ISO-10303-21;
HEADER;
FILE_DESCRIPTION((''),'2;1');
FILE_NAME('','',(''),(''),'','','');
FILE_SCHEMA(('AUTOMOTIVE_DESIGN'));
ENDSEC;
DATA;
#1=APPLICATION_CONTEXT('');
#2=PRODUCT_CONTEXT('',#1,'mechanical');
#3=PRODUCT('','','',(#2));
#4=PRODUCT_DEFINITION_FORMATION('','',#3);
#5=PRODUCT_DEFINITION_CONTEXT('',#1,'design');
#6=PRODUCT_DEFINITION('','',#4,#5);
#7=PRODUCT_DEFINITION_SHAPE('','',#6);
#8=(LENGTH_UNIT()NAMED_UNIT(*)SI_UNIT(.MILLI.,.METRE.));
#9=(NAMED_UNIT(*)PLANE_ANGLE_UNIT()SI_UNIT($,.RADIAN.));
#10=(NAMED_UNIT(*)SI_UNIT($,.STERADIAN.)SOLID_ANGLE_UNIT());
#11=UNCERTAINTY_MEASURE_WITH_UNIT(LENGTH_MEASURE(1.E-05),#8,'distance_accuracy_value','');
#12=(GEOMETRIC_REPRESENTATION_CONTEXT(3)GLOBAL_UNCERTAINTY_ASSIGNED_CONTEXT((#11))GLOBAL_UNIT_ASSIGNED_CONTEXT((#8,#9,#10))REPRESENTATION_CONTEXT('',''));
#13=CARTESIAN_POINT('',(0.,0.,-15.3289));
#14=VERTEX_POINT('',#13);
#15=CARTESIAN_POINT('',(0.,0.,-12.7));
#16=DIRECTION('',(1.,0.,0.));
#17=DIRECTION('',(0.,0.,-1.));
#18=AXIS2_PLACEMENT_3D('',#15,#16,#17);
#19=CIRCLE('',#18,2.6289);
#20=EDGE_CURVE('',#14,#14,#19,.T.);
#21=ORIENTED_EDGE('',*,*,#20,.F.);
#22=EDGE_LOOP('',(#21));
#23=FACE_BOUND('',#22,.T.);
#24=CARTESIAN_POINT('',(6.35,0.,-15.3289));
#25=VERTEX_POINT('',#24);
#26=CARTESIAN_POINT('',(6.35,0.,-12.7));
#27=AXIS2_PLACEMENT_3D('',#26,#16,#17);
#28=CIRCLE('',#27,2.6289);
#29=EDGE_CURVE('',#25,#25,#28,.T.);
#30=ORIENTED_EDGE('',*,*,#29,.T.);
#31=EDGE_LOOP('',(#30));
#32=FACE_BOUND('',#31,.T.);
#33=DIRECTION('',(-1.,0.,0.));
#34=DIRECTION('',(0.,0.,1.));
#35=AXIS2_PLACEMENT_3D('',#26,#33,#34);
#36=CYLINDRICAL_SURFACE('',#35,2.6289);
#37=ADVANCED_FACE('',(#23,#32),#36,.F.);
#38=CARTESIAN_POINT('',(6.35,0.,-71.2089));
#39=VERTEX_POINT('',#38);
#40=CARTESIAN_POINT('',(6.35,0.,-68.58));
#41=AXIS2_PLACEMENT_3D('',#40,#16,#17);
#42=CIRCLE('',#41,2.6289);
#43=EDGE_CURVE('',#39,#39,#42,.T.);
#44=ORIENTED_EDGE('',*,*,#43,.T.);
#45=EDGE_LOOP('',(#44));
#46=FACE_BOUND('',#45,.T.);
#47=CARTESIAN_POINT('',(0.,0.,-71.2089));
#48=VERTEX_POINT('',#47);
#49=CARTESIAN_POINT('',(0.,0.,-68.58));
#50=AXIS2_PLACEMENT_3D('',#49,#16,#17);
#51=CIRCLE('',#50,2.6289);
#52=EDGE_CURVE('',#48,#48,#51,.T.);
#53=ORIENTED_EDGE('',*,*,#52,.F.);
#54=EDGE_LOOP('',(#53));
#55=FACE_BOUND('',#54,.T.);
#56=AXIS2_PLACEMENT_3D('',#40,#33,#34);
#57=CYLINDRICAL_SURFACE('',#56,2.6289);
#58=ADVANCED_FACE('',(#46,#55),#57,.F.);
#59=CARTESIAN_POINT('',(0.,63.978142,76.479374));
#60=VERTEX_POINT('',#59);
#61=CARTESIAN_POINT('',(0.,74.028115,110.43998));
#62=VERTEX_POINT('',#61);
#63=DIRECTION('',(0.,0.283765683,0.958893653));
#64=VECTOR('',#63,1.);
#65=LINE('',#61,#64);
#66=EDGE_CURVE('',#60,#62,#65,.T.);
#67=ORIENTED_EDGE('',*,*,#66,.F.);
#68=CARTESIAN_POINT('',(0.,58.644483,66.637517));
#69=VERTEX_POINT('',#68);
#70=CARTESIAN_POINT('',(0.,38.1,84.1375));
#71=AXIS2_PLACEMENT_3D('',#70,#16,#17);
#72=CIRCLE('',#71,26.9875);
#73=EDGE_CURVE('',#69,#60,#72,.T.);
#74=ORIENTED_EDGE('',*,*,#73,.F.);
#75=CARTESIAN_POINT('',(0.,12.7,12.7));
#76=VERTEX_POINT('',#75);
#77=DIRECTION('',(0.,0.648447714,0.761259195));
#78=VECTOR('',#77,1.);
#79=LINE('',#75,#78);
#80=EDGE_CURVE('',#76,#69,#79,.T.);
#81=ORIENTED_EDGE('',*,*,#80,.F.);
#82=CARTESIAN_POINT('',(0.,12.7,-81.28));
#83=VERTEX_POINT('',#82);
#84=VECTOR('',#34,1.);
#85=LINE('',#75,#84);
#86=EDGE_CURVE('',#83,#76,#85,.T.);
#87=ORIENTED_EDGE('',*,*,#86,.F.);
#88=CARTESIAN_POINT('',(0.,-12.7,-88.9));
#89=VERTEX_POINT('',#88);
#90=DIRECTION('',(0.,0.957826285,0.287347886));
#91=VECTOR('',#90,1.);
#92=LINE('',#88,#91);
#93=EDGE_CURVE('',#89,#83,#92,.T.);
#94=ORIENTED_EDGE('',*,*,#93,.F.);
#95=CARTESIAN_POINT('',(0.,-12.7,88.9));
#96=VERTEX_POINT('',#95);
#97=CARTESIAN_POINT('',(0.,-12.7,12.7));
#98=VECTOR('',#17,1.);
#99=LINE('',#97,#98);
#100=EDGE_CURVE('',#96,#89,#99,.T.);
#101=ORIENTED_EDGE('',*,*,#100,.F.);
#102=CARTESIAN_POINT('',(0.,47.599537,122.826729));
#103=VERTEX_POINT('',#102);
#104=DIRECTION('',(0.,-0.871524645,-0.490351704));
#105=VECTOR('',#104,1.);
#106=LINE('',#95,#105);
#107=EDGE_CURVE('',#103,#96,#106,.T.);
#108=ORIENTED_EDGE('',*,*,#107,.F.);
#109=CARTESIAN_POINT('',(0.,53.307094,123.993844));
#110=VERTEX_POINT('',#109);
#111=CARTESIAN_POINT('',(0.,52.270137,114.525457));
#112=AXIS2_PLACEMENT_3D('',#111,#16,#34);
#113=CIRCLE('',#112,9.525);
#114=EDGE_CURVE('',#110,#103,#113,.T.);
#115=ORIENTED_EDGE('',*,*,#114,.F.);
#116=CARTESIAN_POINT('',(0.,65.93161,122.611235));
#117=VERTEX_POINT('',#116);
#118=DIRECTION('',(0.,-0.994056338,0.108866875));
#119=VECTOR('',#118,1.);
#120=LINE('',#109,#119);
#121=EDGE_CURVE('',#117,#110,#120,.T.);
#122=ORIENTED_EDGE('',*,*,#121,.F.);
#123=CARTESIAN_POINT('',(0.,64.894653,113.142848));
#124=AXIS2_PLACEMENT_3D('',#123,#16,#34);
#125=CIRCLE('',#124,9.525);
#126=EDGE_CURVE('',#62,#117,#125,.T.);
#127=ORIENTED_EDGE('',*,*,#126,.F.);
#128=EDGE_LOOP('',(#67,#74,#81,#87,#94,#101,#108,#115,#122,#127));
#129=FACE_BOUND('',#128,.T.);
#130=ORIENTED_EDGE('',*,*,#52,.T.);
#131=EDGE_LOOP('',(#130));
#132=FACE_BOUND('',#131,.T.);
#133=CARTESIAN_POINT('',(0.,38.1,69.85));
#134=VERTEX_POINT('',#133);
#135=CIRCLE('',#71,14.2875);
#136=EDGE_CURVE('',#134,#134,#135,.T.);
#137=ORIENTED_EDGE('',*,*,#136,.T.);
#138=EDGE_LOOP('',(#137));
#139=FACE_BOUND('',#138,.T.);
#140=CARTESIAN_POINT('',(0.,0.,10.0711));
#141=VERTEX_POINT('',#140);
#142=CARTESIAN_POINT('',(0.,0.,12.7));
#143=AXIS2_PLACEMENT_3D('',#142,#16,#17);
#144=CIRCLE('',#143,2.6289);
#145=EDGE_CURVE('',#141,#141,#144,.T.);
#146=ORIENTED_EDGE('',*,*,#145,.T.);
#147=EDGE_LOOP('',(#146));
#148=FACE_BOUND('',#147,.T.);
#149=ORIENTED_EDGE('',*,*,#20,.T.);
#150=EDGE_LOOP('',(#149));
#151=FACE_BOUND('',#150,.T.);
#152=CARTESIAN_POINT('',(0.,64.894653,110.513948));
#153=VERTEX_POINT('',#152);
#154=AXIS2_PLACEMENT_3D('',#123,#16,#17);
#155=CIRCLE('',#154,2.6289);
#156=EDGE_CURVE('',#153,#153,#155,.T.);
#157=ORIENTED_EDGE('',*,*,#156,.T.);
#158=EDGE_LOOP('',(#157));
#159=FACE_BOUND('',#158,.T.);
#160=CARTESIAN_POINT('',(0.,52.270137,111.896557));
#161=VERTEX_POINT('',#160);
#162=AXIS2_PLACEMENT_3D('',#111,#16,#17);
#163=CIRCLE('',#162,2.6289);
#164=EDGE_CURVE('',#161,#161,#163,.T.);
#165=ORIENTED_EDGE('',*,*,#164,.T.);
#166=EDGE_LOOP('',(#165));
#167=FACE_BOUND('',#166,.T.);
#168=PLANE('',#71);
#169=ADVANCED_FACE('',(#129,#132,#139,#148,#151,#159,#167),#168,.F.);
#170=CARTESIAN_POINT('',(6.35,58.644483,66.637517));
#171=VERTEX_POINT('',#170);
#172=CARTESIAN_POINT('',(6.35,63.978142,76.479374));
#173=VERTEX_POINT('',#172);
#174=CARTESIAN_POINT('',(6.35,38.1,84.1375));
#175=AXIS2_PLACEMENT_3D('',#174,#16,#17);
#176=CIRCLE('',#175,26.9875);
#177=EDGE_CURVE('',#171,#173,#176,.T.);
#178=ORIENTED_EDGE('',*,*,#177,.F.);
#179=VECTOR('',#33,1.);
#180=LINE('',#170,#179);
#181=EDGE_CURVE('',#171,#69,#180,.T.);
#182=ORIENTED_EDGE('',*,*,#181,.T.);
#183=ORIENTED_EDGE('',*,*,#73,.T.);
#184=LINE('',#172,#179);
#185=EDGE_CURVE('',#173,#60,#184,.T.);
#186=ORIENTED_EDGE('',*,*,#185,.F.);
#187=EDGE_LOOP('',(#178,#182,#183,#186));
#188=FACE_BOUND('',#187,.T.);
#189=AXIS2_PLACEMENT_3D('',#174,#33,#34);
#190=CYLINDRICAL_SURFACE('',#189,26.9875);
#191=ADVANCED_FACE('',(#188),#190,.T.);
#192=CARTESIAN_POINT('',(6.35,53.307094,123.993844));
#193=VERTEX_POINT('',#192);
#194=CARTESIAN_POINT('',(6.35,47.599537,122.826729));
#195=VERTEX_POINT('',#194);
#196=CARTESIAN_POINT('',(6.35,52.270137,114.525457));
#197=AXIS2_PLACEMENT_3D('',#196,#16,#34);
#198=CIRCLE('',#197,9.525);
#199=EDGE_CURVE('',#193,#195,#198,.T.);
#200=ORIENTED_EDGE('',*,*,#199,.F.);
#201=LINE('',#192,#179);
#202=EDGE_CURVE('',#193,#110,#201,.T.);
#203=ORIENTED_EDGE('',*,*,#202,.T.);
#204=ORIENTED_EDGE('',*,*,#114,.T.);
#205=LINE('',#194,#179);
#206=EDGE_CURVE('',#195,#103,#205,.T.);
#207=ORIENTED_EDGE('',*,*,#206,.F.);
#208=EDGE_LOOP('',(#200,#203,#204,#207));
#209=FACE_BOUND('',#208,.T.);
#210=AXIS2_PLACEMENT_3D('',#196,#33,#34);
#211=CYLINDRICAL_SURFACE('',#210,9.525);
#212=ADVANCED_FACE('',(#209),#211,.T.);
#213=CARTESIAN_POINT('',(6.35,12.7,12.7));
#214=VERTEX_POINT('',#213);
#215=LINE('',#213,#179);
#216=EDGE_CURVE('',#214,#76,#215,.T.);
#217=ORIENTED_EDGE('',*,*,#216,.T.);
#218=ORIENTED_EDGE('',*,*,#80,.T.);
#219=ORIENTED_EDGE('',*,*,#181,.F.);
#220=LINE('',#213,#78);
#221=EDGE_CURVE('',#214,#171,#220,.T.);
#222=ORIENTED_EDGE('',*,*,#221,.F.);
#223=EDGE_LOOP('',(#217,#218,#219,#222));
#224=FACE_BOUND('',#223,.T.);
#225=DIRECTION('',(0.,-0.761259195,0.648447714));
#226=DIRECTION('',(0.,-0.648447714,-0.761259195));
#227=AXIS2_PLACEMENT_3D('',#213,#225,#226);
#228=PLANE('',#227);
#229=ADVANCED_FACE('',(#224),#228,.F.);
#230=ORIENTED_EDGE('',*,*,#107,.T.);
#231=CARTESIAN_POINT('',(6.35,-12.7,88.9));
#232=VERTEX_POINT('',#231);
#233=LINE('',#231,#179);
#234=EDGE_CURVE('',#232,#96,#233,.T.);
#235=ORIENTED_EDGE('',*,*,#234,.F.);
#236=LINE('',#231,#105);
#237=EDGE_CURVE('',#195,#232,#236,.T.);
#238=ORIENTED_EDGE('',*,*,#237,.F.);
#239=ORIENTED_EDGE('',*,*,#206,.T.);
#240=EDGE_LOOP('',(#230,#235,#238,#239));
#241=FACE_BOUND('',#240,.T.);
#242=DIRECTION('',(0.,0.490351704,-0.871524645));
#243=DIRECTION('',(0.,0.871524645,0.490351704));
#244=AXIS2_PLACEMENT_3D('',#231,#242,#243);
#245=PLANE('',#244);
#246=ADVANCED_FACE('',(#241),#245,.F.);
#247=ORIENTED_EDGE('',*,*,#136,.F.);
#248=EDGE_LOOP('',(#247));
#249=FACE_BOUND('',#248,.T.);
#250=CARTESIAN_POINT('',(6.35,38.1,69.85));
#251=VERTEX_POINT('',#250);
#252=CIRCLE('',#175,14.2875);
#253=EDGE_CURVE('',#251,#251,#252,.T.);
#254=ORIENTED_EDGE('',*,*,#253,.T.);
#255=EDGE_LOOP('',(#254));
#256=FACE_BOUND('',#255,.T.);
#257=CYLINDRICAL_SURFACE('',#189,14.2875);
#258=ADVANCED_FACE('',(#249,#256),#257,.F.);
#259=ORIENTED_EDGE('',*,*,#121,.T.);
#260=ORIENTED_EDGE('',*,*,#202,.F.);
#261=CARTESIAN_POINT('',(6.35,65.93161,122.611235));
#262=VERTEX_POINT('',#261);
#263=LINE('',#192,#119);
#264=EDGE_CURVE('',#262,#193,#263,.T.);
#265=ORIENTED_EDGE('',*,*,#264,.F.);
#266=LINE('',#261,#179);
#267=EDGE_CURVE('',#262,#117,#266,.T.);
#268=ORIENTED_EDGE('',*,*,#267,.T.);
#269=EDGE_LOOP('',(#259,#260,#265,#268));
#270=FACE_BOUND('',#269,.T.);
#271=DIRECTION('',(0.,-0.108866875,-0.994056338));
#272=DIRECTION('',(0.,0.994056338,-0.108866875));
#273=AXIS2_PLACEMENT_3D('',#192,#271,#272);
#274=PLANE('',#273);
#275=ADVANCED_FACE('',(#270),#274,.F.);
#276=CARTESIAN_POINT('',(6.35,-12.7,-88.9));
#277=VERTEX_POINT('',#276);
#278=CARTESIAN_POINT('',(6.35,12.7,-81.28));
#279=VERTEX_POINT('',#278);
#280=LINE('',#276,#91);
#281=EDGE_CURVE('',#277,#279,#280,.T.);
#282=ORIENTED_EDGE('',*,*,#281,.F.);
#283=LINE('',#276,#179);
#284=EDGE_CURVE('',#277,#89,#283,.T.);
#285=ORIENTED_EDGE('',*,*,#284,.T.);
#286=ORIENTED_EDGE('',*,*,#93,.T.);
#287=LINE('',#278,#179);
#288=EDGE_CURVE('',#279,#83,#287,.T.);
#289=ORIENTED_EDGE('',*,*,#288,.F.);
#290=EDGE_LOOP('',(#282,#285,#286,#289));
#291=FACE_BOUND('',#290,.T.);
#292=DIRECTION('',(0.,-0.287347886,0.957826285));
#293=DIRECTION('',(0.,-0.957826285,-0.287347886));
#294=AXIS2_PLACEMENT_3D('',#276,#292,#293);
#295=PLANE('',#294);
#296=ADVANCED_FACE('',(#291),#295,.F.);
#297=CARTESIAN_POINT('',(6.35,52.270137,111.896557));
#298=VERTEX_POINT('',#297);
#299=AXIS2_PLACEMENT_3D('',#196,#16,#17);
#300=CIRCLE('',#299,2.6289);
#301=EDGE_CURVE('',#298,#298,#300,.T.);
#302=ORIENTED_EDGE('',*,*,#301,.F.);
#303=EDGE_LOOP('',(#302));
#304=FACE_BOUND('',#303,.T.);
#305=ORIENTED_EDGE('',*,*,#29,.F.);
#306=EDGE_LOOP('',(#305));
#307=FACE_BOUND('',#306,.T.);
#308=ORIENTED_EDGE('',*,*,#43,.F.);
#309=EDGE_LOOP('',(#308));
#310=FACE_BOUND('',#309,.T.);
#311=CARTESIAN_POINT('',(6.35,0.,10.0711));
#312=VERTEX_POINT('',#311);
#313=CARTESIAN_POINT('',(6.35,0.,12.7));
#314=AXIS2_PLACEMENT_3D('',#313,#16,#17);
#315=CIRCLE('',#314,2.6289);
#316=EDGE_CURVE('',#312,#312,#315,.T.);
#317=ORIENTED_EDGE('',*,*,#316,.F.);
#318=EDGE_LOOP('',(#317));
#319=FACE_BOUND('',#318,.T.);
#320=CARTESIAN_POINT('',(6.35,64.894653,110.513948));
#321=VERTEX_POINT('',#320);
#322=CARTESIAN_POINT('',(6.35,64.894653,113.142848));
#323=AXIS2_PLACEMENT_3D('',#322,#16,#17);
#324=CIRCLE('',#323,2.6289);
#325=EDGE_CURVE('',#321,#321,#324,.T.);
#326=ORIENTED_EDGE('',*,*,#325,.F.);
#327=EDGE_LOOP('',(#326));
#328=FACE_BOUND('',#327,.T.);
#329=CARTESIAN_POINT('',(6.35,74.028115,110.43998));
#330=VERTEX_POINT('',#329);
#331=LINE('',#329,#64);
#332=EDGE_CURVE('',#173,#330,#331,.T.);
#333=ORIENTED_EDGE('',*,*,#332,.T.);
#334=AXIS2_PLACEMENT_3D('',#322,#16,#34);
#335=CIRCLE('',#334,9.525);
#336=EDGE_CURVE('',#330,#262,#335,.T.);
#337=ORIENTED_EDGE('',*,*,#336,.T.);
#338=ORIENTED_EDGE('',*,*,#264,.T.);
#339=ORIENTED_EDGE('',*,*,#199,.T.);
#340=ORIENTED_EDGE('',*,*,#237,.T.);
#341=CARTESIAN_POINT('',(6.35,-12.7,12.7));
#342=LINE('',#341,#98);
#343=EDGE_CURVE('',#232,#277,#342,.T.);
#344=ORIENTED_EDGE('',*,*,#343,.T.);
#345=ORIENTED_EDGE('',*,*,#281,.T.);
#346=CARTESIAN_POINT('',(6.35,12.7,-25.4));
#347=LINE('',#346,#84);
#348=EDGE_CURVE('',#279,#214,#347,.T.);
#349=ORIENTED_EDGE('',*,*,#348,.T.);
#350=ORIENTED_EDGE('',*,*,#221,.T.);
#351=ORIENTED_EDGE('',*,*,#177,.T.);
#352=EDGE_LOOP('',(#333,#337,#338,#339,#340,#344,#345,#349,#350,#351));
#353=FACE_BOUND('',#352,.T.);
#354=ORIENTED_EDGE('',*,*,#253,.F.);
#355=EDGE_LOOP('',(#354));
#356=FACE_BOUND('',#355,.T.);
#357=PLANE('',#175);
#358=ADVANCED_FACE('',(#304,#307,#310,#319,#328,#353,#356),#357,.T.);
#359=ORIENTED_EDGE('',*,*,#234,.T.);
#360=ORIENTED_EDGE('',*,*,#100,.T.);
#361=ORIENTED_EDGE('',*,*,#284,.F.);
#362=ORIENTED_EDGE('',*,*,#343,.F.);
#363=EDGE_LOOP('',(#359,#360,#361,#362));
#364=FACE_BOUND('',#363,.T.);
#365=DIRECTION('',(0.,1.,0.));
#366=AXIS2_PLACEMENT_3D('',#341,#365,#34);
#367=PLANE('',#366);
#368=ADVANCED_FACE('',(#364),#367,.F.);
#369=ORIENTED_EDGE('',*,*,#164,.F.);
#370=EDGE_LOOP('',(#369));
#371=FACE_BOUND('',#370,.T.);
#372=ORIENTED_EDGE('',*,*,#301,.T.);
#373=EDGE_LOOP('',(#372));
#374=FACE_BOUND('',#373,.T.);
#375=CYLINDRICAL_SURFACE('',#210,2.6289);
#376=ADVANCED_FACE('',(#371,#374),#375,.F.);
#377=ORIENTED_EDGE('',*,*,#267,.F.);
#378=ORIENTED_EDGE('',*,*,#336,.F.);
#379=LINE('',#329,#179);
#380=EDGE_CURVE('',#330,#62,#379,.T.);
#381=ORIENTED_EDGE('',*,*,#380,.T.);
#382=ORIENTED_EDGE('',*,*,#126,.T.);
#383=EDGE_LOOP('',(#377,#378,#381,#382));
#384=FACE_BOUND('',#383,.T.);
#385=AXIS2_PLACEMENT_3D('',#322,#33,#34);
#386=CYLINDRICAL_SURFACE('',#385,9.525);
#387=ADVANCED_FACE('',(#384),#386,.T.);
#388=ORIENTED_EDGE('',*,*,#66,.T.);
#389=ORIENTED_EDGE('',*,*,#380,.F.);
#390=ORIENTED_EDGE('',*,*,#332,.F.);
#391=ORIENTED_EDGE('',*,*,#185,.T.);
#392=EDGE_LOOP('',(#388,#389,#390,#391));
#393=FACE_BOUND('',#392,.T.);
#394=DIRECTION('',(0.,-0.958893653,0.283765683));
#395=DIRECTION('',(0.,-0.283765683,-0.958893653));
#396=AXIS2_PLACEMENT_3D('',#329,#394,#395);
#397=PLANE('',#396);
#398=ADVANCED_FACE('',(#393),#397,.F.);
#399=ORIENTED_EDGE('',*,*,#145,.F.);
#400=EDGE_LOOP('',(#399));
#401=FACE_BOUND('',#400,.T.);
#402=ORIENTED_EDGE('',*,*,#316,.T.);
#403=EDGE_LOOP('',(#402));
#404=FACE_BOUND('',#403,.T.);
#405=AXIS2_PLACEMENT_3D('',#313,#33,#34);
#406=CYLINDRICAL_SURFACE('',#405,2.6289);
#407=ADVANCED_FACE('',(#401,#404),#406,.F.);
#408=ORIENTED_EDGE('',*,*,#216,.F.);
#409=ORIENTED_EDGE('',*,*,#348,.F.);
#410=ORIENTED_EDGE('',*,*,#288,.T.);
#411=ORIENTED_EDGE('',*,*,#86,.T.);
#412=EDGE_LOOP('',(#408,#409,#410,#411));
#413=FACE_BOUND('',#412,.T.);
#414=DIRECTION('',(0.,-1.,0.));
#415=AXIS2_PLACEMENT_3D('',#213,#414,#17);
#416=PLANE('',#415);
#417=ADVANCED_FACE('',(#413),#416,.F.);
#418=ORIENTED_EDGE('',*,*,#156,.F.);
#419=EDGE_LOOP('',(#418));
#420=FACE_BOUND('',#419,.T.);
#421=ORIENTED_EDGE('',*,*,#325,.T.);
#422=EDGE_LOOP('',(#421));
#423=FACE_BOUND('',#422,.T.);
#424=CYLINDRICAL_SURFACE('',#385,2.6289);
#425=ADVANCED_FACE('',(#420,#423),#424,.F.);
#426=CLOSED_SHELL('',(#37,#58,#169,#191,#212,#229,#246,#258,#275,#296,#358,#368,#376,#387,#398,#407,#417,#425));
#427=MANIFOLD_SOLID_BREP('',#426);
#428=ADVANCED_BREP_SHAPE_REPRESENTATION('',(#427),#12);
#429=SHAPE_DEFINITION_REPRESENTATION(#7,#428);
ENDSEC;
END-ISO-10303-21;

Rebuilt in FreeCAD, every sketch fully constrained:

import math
import FreeCAD as App
import Part
import Sketcher

V = App.Vector
Q = App.Units.Quantity

doc = App.newDocument("Part")
body = doc.addObject("PartDesign::Body", "Body")

sketch1 = body.newObject("Sketcher::SketchObject", "Sketch")
sketch1.AttachmentSupport = (doc.getObject("YZ_Plane"), [""])
sketch1.MapMode = "FlatFace"
sketch1.addGeometry([
    Part.LineSegment(V(47.6, 122.8, 0), V(-12.7, 88.9, 0)),
    Part.LineSegment(V(-12.7, 88.9, 0), V(-12.7, -88.9, 0)),
    Part.LineSegment(V(-12.7, -88.9, 0), V(12.7, -81.3, 0)),
    Part.LineSegment(V(12.7, -81.3, 0), V(12.7, 12.7, 0)),
    Part.LineSegment(V(12.7, 12.7, 0), V(58.6, 66.6, 0)),
    Part.ArcOfCircle(Part.Circle(V(38.1, 84.1, 0), V(0, 0, 1), 27), math.radians(-40), math.radians(-16)),
    Part.LineSegment(V(64, 76.5, 0), V(74, 110.4, 0)),
    Part.ArcOfCircle(Part.Circle(V(64.9, 113.1, 0), V(0, 0, 1), 9.5), math.radians(-16), math.radians(84)),
    Part.LineSegment(V(65.9, 122.6, 0), V(53.3, 124, 0)),
    Part.ArcOfCircle(Part.Circle(V(52.3, 114.5, 0), V(0, 0, 1), 9.5), math.radians(84), math.radians(119)),
    Part.Circle(V(0, -68.6, 0), V(0, 0, 1), 2.6),
    Part.Circle(V(0, -12.7, 0), V(0, 0, 1), 2.6),
    Part.Circle(V(0, 12.7, 0), V(0, 0, 1), 2.6),
    Part.Circle(V(38.1, 84.1, 0), V(0, 0, 1), 14.3),
    Part.Circle(V(52.3, 114.5, 0), V(0, 0, 1), 2.6),
    Part.Circle(V(64.9, 113.1, 0), V(0, 0, 1), 2.6),
], False)
sketch1.addConstraint([
    Sketcher.Constraint("Coincident", 0, 2, 1, 1),
    Sketcher.Constraint("Coincident", 1, 2, 2, 1),
    Sketcher.Constraint("Coincident", 2, 2, 3, 1),
    Sketcher.Constraint("Coincident", 3, 2, 4, 1),
    Sketcher.Constraint("Tangent", 4, 2, 5, 1),
    Sketcher.Constraint("Tangent", 5, 2, 6, 1),
    Sketcher.Constraint("Tangent", 6, 2, 7, 1),
    Sketcher.Constraint("Tangent", 7, 2, 8, 1),
    Sketcher.Constraint("Tangent", 8, 2, 9, 1),
    Sketcher.Constraint("Tangent", 9, 2, 0, 1),
    Sketcher.Constraint("Vertical", 1),
    Sketcher.Constraint("Vertical", 3),
    Sketcher.Constraint("Coincident", 13, 3, 5, 3),
    Sketcher.Constraint("Coincident", 14, 3, 9, 3),
    Sketcher.Constraint("Coincident", 15, 3, 7, 3),
    Sketcher.Constraint("Equal", 7, 9),
    Sketcher.Constraint("Equal", 10, 11),
    Sketcher.Constraint("Equal", 11, 12),
    Sketcher.Constraint("Equal", 12, 14),
    Sketcher.Constraint("Equal", 14, 15),
    Sketcher.Constraint("Symmetric", 11, 3, 12, 3, -1, 1),
    Sketcher.Constraint("PointOnObject", 10, 3, -2),
    Sketcher.Constraint("PointOnObject", 11, 3, -2),
    Sketcher.Constraint("Horizontal", 12, 3, 3, 2),
    Sketcher.Constraint("DistanceY", 1, 2, 1, 1, Q("7 in")),
    Sketcher.Constraint("Diameter", 10, Q("0.207 in")),
    Sketcher.Constraint("Diameter", 13, Q("1.125 in")),
    Sketcher.Constraint("DistanceY", 3, 1, 3, 2, Q("3.7 in")),
    Sketcher.Constraint("Radius", 5, Q("1.0625 in")),
    Sketcher.Constraint("Radius", 7, Q("0.375 in")),
    Sketcher.Constraint("DistanceY", 11, 3, 12, 3, Q("1 in")),
    Sketcher.Constraint("DistanceX", 0, 2, 5, 3, Q("2 in")),
    Sketcher.Constraint("DistanceY", 12, 3, 0, 2, Q("3 in")),
    Sketcher.Constraint("DistanceX", 1, 2, 2, 2, Q("1 in")),
    Sketcher.Constraint("Distance", 8, Q("0.5 in")),
    Sketcher.Constraint("DistanceX", -1, 1, 5, 3, Q("1.5 in")),
    Sketcher.Constraint("DistanceY", 10, 3, -1, 1, Q("2.7 in")),
    Sketcher.Constraint("Angle", 8, Q("173.75 deg")),
    Sketcher.Constraint("DistanceY", -1, 1, 5, 3, Q("3.3125 in")),
    Sketcher.Constraint("DistanceX", 9, 2, 14, 3, Q("4.6706 mm")),
    Sketcher.Constraint("DistanceY", -1, 1, 6, 2, Q("110.43998 mm")),
])
pad1 = body.newObject("PartDesign::Pad", "Pad")
pad1.Profile = sketch1
pad1.Length = Q("0.25 in")

doc.recompute()
